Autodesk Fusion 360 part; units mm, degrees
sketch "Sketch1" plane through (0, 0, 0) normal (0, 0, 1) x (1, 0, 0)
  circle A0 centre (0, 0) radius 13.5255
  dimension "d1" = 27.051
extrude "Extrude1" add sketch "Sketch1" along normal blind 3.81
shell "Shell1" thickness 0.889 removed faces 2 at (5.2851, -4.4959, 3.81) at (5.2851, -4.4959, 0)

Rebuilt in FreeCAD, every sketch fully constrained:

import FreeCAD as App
import Part
import Sketcher
from FreeCAD import Vector
Q = App.Units.Quantity


def faces_at(feature, points):
    """Names of the faces that lie closest to the given points."""
    faces = feature.Shape.Faces
    near = lambda p: min(range(len(faces)), key=lambda i: faces[i].distToShape(Part.Vertex(*p))[0])
    return sorted({f"Face{near(p) + 1}" for p in points})

doc = App.newDocument("Part")
body = doc.addObject("PartDesign::Body", "Body")

# Sketch on XY plane
sketch1 = body.newObject("Sketcher::SketchObject", "Sketch")
sketch1.AttachmentSupport = (doc.getObject("XY_Plane"), [""])
sketch1.MapMode = "FlatFace"
sketch1.addGeometry(Part.Circle(Vector(0, 0, 0), Vector(0, 0, 1), 14), False)
sketch1.addConstraint(Sketcher.Constraint("Coincident", 0, 3, -1, 1))
sketch1.addConstraint(Sketcher.Constraint("Diameter", 0, Q("1.065 in")))
pad1 = body.newObject("PartDesign::Pad", "Pad")
pad1.Profile = sketch1
pad1.Length = Q("0.15 in")
doc.recompute()

thickness = body.newObject("PartDesign::Thickness", "Thickness")
thickness.Base = (pad1, faces_at(pad1, [(5.285, -4.496, 3.81), (5.285, -4.496, 0)]))
thickness.Value = Q("0.035 in")
thickness.Reversed = True
thickness.Join = "Intersection"

doc.recompute()
